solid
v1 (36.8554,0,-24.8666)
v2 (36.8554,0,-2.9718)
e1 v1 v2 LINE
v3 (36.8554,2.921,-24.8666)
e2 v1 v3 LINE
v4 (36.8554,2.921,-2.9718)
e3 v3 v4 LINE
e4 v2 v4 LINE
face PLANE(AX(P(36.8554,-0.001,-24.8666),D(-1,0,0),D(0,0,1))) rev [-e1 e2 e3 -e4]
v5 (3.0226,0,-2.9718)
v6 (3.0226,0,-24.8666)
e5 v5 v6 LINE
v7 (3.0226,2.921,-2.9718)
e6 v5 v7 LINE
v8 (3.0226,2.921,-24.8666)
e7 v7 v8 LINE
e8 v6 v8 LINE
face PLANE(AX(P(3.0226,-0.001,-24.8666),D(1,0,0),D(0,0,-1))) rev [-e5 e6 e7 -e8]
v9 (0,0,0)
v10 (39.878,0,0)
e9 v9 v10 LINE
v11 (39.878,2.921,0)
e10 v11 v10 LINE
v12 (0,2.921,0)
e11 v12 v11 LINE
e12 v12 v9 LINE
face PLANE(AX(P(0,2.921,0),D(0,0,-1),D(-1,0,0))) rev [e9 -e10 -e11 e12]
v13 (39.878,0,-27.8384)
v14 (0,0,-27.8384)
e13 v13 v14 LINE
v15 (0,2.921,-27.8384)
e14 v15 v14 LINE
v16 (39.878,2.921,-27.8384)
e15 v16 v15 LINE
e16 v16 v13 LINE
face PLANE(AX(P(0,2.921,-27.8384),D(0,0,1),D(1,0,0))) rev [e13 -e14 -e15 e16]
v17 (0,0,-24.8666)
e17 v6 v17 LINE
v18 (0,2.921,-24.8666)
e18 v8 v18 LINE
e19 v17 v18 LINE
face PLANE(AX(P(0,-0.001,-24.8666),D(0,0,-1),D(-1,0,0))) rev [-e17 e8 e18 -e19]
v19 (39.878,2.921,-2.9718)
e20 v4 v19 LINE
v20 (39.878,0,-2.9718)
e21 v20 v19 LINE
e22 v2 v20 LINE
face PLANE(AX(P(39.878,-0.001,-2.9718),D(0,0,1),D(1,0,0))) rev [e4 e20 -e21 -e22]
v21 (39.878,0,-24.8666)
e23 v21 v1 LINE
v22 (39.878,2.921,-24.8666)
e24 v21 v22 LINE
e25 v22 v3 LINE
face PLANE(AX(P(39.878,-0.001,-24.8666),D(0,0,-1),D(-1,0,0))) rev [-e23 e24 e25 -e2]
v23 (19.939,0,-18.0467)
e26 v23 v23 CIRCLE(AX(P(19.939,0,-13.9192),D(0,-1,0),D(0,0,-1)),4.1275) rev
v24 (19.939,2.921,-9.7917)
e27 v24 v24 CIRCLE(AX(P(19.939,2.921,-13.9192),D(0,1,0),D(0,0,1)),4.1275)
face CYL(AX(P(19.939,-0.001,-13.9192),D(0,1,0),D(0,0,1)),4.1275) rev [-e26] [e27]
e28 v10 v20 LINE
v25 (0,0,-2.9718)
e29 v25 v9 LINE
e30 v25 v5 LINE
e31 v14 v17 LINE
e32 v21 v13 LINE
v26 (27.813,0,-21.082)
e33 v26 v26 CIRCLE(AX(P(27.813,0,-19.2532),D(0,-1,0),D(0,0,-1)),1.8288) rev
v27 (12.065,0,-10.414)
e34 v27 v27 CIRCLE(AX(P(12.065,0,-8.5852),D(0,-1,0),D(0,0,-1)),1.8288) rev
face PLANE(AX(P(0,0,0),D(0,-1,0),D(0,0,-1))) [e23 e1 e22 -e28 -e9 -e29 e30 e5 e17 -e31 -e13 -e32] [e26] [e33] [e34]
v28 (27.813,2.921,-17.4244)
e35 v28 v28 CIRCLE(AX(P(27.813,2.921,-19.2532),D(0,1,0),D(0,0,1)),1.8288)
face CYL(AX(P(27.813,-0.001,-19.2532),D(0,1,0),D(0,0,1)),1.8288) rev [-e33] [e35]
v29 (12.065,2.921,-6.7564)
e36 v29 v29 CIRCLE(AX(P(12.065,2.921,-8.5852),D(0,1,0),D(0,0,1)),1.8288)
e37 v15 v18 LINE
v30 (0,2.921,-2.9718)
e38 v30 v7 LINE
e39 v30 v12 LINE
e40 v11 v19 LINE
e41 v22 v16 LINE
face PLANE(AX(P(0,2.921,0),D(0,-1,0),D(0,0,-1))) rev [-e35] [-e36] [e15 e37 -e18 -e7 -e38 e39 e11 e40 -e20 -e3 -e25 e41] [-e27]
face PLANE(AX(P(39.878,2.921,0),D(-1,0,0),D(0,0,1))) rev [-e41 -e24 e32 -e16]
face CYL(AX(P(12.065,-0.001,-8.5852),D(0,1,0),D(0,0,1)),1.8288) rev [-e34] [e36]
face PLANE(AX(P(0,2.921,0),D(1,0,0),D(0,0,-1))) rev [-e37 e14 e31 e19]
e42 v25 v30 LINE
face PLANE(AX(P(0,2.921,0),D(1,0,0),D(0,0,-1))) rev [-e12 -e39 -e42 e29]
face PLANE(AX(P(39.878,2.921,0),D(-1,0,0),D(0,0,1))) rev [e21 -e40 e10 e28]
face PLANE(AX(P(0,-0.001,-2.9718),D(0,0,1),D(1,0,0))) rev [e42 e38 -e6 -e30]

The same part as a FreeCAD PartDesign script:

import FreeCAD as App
import Part
import Sketcher
from FreeCAD import Vector
Q = App.Units.Quantity


def add_polygon(sketch, points):
    """Adds a closed chain of lines whose ends are joined by coincident constraints."""
    first, n = sketch.GeometryCount, len(points)
    for a, b in zip(points, points[1:] + points[:1]):
        sketch.addGeometry(Part.LineSegment(App.Vector(*a, 0), App.Vector(*b, 0)), False)
    for i in range(n):
        sketch.addConstraint(Sketcher.Constraint("Coincident", first + i, 2, first + (i + 1) % n, 1))

doc = App.newDocument("Part")
params = doc.addObject("Spreadsheet::Sheet", "Params")
for row, (alias, value) in enumerate([
    ("sketch1_width", "1.57 in"),
    ("sketch1_height", "1.096 in"),
    ("pad1_length", "0.115 in"),
    ("sketch2_width", "0.119 in"),
    ("sketch2_height", "0.862 in"),
    ("sketch3_width", "0.119 in"),
    ("sketch3_height", "0.862 in"),
    ("sketch4_diameter", "0.325 in"),
    ("sketch5_diameter", "0.144 in"),
    ("sketch6_diameter", "0.144 in"),
], start=1):
    params.set(f"A{row}", alias)
    params.set(f"B{row}", "=" + value)
    params.setAlias(f"B{row}", alias)

body = doc.addObject("PartDesign::Body", "Body")

# Sketch on XZ plane
sketch1 = body.newObject("Sketcher::SketchObject", "Sketch")
sketch1.AttachmentSupport = (doc.getObject("XZ_Plane"), [""])
sketch1.MapMode = "FlatFace"
add_polygon(sketch1, [(0, -28), (0, 0), (40, 0), (40, -28)])  # lines 0-3
sketch1.addConstraint([
    Sketcher.Constraint("Vertical", 0),
    Sketcher.Constraint("Horizontal", 1),
    Sketcher.Constraint("Vertical", 2),
    Sketcher.Constraint("Horizontal", 3),
    Sketcher.Constraint("Coincident", 0, 2, -1, 1),
    Sketcher.Constraint("DistanceX", 1, 1, 1, 2, Q("1.57 in")),
    Sketcher.Constraint("DistanceY", 0, 1, 0, 2, Q("1.096 in")),
])
sketch1.setExpression("Constraints[9]", "Params.sketch1_width")
sketch1.setExpression("Constraints[10]", "Params.sketch1_height")
pad1 = body.newObject("PartDesign::Pad", "Pad")
pad1.Profile = sketch1
pad1.setExpression("Length", "Params.pad1_length")
pad1.Reversed = True

# Sketch on XZ plane
sketch2 = body.newObject("Sketcher::SketchObject", "Sketch001")
sketch2.AttachmentSupport = (doc.getObject("XZ_Plane"), [""])
sketch2.MapMode = "FlatFace"
sketch2.AttachmentOffset = App.Placement(Vector(0, 0, -0.115 * 25.4), App.Rotation())
add_polygon(sketch2, [(0, -24.9), (0, -3), (3, -3), (3, -24.9)])  # lines 0-3
sketch2.addConstraint([
    Sketcher.Constraint("Vertical", 0),
    Sketcher.Constraint("Horizontal", 1),
    Sketcher.Constraint("Vertical", 2),
    Sketcher.Constraint("Horizontal", 3),
    Sketcher.Constraint("PointOnObject", 0, 2, -2),
    Sketcher.Constraint("DistanceX", 1, 1, 1, 2, Q("0.119 in")),
    Sketcher.Constraint("DistanceY", 0, 1, 0, 2, Q("0.862 in")),
    Sketcher.Constraint("DistanceY", 0, 2, -1, 1, Q("0.117 in")),
])
sketch2.setExpression("Constraints[9]", "Params.sketch2_width")
sketch2.setExpression("Constraints[10]", "Params.sketch2_height")
pocket1 = body.newObject("PartDesign::Pocket", "Pocket")
pocket1.Profile = sketch2
pocket1.Type = "UpToFirst"
pocket1.Reversed = True

# Sketch on XZ plane
sketch3 = body.newObject("Sketcher::SketchObject", "Sketch002")
sketch3.AttachmentSupport = (doc.getObject("XZ_Plane"), [""])
sketch3.MapMode = "FlatFace"
sketch3.AttachmentOffset = App.Placement(Vector(0, 0, -0.115 * 25.4), App.Rotation())
add_polygon(sketch3, [(36.9, -24.9), (36.9, -3), (39.9, -3), (39.9, -24.9)])  # lines 0-3
sketch3.addConstraint([
    Sketcher.Constraint("Vertical", 0),
    Sketcher.Constraint("Horizontal", 1),
    Sketcher.Constraint("Vertical", 2),
    Sketcher.Constraint("Horizontal", 3),
    Sketcher.Constraint("DistanceX", 1, 1, 1, 2, Q("0.119 in")),
    Sketcher.Constraint("DistanceY", 0, 1, 0, 2, Q("0.862 in")),
    Sketcher.Constraint("DistanceX", -1, 1, 1, 2, Q("1.57 in")),
    Sketcher.Constraint("DistanceY", 0, 2, -1, 1, Q("0.117 in")),
])
sketch3.setExpression("Constraints[8]", "Params.sketch3_width")
sketch3.setExpression("Constraints[9]", "Params.sketch3_height")
pocket2 = body.newObject("PartDesign::Pocket", "Pocket001")
pocket2.Profile = sketch3
pocket2.Type = "UpToFirst"
pocket2.Reversed = True

# Sketch on XZ plane
sketch4 = body.newObject("Sketcher::SketchObject", "Sketch003")
sketch4.AttachmentSupport = (doc.getObject("XZ_Plane"), [""])
sketch4.MapMode = "FlatFace"
sketch4.AttachmentOffset = App.Placement(Vector(0, 0, -0.115 * 25.4), App.Rotation())
sketch4.addGeometry(Part.Circle(Vector(19.9, -13.9, 0), Vector(0, 0, 1), 4.1), False)
sketch4.addConstraint([
    Sketcher.Constraint("Diameter", 0, Q("0.325 in")),
    Sketcher.Constraint("DistanceX", -1, 1, 0, 3, Q("0.785 in")),
    Sketcher.Constraint("DistanceY", 0, 3, -1, 1, Q("0.548 in")),
])
sketch4.setExpression("Constraints[0]", "Params.sketch4_diameter")
pocket3 = body.newObject("PartDesign::Pocket", "Pocket002")
pocket3.Profile = sketch4
pocket3.Type = "UpToFirst"
pocket3.Reversed = True

# Sketch on XZ plane
sketch5 = body.newObject("Sketcher::SketchObject", "Sketch004")
sketch5.AttachmentSupport = (doc.getObject("XZ_Plane"), [""])
sketch5.MapMode = "FlatFace"
sketch5.AttachmentOffset = App.Placement(Vector(0, 0, -0.115 * 25.4), App.Rotation())
sketch5.addGeometry(Part.Circle(Vector(12.1, -8.6, 0), Vector(0, 0, 1), 1.8), False)
sketch5.addConstraint([
    Sketcher.Constraint("Diameter", 0, Q("0.144 in")),
    Sketcher.Constraint("DistanceX", -1, 1, 0, 3, Q("0.475 in")),
    Sketcher.Constraint("DistanceY", 0, 3, -1, 1, Q("0.338 in")),
])
sketch5.setExpression("Constraints[0]", "Params.sketch5_diameter")
pocket4 = body.newObject("PartDesign::Pocket", "Pocket003")
pocket4.Profile = sketch5
pocket4.Type = "UpToFirst"
pocket4.Reversed = True

# Sketch on XZ plane
sketch6 = body.newObject("Sketcher::SketchObject", "Sketch005")
sketch6.AttachmentSupport = (doc.getObject("XZ_Plane"), [""])
sketch6.MapMode = "FlatFace"
sketch6.AttachmentOffset = App.Placement(Vector(0, 0, -0.115 * 25.4), App.Rotation())
sketch6.addGeometry(Part.Circle(Vector(27.8, -19.3, 0), Vector(0, 0, 1), 1.8), False)
sketch6.addConstraint([
    Sketcher.Constraint("Diameter", 0, Q("0.144 in")),
    Sketcher.Constraint("DistanceX", -1, 1, 0, 3, Q("1.095 in")),
    Sketcher.Constraint("DistanceY", 0, 3, -1, 1, Q("0.758 in")),
])
sketch6.setExpression("Constraints[0]", "Params.sketch6_diameter")
pocket5 = body.newObject("PartDesign::Pocket", "Pocket004")
pocket5.Profile = sketch6
pocket5.Type = "UpToFirst"
pocket5.Reversed = True

doc.recompute()
